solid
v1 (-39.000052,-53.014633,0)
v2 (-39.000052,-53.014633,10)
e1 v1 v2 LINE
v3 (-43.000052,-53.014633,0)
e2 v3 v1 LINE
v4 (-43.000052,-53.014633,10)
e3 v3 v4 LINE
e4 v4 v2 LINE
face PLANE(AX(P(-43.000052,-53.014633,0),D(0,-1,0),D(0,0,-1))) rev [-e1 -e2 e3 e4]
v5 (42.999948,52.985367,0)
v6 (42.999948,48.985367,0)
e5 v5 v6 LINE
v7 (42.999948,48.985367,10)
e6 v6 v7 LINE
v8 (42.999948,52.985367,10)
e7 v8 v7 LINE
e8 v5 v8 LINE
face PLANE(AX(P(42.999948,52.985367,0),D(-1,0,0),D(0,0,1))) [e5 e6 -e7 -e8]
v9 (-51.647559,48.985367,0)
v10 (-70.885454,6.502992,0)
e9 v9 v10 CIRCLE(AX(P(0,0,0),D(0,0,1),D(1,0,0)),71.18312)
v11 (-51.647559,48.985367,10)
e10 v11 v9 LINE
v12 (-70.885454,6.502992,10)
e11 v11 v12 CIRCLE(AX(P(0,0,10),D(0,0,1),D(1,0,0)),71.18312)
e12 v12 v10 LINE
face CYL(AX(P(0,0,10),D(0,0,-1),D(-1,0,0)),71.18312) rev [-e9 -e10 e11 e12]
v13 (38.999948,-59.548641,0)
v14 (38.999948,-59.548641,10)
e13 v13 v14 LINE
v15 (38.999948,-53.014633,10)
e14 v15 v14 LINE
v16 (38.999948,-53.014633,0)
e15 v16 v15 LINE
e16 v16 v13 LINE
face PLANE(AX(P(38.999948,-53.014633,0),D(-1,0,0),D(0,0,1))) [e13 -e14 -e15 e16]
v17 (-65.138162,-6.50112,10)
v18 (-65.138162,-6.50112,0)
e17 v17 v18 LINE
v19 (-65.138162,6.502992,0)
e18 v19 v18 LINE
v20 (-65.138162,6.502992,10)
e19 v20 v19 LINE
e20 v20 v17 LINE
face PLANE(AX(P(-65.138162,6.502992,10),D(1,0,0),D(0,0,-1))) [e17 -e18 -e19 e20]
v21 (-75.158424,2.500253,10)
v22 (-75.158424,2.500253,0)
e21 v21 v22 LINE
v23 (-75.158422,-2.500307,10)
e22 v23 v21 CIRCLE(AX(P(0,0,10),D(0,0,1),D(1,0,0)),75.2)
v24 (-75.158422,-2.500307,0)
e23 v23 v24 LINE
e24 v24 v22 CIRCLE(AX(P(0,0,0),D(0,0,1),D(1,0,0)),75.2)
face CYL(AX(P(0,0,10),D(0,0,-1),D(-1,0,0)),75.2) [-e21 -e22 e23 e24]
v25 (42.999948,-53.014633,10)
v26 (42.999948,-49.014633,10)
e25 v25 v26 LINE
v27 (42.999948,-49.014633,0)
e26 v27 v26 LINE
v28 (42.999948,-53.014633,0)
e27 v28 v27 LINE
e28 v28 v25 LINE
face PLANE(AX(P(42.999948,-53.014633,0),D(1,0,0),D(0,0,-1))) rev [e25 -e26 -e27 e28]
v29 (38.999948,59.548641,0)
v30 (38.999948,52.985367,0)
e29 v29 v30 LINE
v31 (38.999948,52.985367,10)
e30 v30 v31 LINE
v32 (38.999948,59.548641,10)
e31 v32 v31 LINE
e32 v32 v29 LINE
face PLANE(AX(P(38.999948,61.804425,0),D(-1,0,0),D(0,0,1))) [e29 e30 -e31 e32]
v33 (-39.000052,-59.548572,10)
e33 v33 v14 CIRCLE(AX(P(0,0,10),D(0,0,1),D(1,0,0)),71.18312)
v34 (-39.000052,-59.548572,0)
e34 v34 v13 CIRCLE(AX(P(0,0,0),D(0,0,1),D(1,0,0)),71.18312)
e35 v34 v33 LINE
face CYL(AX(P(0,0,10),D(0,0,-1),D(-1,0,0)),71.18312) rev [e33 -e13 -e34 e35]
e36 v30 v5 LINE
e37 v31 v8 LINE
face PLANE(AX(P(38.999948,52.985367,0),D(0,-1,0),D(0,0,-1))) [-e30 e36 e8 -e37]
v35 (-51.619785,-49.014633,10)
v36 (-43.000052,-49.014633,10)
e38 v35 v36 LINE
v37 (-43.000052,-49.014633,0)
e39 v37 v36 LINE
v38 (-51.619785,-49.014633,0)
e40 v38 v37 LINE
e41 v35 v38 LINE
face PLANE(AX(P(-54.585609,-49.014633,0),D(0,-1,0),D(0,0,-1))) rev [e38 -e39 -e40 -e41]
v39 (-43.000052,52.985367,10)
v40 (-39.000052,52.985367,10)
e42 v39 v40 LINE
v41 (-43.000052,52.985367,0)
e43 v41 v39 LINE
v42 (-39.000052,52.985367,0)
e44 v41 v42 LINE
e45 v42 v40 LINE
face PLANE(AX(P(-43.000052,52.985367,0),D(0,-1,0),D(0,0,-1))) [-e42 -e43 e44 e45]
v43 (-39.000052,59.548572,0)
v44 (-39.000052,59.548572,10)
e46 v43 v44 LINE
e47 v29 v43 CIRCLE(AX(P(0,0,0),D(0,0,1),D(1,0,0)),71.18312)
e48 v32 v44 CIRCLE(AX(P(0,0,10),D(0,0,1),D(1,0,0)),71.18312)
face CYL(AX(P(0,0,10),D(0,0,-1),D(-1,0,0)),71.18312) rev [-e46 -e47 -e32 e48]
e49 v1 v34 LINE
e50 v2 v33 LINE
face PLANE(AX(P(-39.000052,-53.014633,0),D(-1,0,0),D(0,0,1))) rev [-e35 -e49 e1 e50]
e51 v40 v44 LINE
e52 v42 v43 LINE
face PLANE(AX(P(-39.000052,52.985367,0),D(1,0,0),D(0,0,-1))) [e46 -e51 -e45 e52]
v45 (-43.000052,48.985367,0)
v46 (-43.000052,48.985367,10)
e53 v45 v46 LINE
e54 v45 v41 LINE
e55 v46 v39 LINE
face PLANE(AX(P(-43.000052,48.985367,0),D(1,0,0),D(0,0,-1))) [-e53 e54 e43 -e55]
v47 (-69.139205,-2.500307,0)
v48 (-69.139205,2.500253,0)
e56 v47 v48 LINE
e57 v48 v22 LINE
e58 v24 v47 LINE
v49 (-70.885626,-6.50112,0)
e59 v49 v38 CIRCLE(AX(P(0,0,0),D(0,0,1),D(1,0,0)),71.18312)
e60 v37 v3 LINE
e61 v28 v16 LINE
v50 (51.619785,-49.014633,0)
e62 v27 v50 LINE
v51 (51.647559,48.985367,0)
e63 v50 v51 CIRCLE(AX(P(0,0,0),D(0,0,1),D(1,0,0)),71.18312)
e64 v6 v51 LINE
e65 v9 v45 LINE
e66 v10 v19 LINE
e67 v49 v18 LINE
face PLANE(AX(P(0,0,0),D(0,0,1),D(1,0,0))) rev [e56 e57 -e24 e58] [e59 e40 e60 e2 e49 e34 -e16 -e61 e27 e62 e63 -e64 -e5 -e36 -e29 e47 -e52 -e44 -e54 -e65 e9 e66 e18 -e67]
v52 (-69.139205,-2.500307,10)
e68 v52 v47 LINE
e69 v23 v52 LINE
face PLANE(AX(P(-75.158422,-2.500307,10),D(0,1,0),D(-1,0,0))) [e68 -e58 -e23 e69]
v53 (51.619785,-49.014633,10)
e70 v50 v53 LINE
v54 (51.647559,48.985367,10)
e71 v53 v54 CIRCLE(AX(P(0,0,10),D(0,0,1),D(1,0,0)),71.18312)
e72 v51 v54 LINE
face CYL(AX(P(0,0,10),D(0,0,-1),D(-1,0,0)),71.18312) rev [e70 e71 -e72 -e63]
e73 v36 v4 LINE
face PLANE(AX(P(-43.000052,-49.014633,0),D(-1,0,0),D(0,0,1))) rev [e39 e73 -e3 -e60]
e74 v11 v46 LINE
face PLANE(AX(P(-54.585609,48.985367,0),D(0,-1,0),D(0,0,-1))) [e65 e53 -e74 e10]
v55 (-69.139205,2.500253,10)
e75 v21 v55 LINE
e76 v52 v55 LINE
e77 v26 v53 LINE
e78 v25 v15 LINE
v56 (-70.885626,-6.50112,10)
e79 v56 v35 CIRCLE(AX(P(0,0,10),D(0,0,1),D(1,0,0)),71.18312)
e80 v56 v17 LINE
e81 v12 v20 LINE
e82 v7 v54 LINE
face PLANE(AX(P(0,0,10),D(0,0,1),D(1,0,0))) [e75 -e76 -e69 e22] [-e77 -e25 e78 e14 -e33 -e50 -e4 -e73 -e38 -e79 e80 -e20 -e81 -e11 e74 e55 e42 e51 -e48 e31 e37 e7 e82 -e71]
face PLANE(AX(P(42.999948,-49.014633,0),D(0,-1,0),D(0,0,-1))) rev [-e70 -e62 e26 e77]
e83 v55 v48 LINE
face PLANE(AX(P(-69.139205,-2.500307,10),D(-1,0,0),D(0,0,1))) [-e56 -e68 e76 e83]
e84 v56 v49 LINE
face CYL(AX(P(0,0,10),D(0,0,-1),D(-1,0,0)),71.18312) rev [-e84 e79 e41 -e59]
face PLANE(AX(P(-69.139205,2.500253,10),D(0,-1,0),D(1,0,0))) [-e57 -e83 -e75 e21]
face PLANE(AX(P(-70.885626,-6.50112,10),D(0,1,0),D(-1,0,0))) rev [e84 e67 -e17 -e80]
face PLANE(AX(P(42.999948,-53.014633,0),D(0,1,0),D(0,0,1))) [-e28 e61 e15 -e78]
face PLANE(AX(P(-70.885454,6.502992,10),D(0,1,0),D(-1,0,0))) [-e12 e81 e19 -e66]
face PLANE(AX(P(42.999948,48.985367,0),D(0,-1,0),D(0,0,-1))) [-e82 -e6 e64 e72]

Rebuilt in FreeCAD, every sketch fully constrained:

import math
import FreeCAD as App
import Part
import Sketcher

V = App.Vector

doc = App.newDocument("Part")
body = doc.addObject("PartDesign::Body", "Body")

# Sketch on XY plane
sketch1 = body.newObject("Sketcher::SketchObject", "Sketch")
sketch1.AttachmentSupport = (doc.getObject("XY_Plane"), [""])
sketch1.MapMode = "FlatFace"
sketch1.addGeometry(Part.LineSegment(V(-69.139205, -2.500307, 0), V(-75.158422, -2.500307, 0)), False)
sketch1.addGeometry(Part.ArcOfCircle(Part.Circle(V(0, 0, 0), V(0, 0, 1), 75.2), math.radians(-178.094635), math.radians(178.094676)), False)
sketch1.addGeometry(Part.LineSegment(V(-75.158424, 2.500253, 0), V(-69.139205, 2.500253, 0)), False)
sketch1.addGeometry(Part.LineSegment(V(-69.139205, 2.500253, 0), V(-69.139205, -2.500307, 0)), False)
sketch1.addGeometry(Part.LineSegment(V(-70.885626, -6.50112, 0), V(-65.138162, -6.50112, 0)), False)
sketch1.addGeometry(Part.LineSegment(V(-65.138162, -6.50112, 0), V(-65.138162, 6.502992, 0)), False)
sketch1.addGeometry(Part.LineSegment(V(-65.138162, 6.502992, 0), V(-70.885454, 6.502992, 0)), False)
sketch1.addGeometry(Part.ArcOfCircle(Part.Circle(V(0, 0, 0), V(0, 0, 1), 71.18312), math.radians(-174.759902), math.radians(174.758389)), False)
sketch1.addConstraint(Sketcher.Constraint("Coincident", 0, 2, 1, 1))
sketch1.addConstraint(Sketcher.Constraint("Coincident", 1, 2, 2, 1))
sketch1.addConstraint(Sketcher.Constraint("Coincident", 2, 2, 3, 1))
sketch1.addConstraint(Sketcher.Constraint("Coincident", 3, 2, 0, 1))
sketch1.addConstraint(Sketcher.Constraint("Coincident", 4, 2, 5, 1))
sketch1.addConstraint(Sketcher.Constraint("Coincident", 5, 2, 6, 1))
sketch1.addConstraint(Sketcher.Constraint("Coincident", 6, 2, 7, 2))
sketch1.addConstraint(Sketcher.Constraint("Coincident", 7, 1, 4, 1))
sketch1.addConstraint(Sketcher.Constraint("Horizontal", 0))
sketch1.addConstraint(Sketcher.Constraint("Horizontal", 2))
sketch1.addConstraint(Sketcher.Constraint("Vertical", 3))
sketch1.addConstraint(Sketcher.Constraint("Horizontal", 4))
sketch1.addConstraint(Sketcher.Constraint("Vertical", 5))
sketch1.addConstraint(Sketcher.Constraint("Horizontal", 6))
sketch1.addConstraint(Sketcher.Constraint("Coincident", 1, 3, -1, 1))
sketch1.addConstraint(Sketcher.Constraint("Coincident", 7, 3, -1, 1))
sketch1.addConstraint(Sketcher.Constraint("Radius", 1, 75.2))
sketch1.addConstraint(Sketcher.Constraint("Radius", 7, 71.18312))
sketch1.addConstraint(Sketcher.Constraint("DistanceX", 2, 1, 2, 2, 6.019219))
sketch1.addConstraint(Sketcher.Constraint("DistanceY", 3, 2, 3, 1, 5.00056))
sketch1.addConstraint(Sketcher.Constraint("DistanceY", 5, 1, 5, 2, 13.004112))
sketch1.addConstraint(Sketcher.Constraint("DistanceY", 3, 2, 5, 2, 9.003299))
sketch1.addConstraint(Sketcher.Constraint("DistanceX", 1, 2, 7, 1, 4.272798))
sketch1.addConstraint(Sketcher.Constraint("DistanceX", 4, 1, 4, 2, 5.747464))
pad1 = body.newObject("PartDesign::Pad", "Pad")
pad1.Profile = sketch1
pad1.Length = 10

# Sketch on XY plane
sketch2 = body.newObject("Sketcher::SketchObject", "Sketch001")
sketch2.AttachmentSupport = (doc.getObject("XY_Plane"), [""])
sketch2.MapMode = "FlatFace"
sketch2.AttachmentOffset = App.Placement(V(0, 0, 10), App.Rotation())
sketch2.addGeometry(Part.LineSegment(V(42.999948, -49.014633, 0), V(42.999948, -53.014633, 0)), False)
sketch2.addGeometry(Part.LineSegment(V(42.999948, -53.014633, 0), V(38.999948, -53.014633, 0)), False)
sketch2.addGeometry(Part.LineSegment(V(38.999948, -53.014633, 0), V(38.999948, -62.774923, 0)), False)
sketch2.addGeometry(Part.LineSegment(V(38.999948, -62.774923, 0), V(55.729863, -49.014633, 0)), False)
sketch2.addGeometry(Part.LineSegment(V(55.729863, -49.014633, 0), V(42.999948, -49.014633, 0)), False)
sketch2.addGeometry(Part.LineSegment(V(42.999948, 52.985367, 0), V(42.999948, 48.985367, 0)), False)
sketch2.addGeometry(Part.LineSegment(V(42.999948, 48.985367, 0), V(54.948624, 48.985367, 0)), False)
sketch2.addGeometry(Part.LineSegment(V(54.948624, 48.985367, 0), V(38.999948, 61.804425, 0)), False)
sketch2.addGeometry(Part.LineSegment(V(38.999948, 61.804425, 0), V(38.999948, 52.985367, 0)), False)
sketch2.addGeometry(Part.LineSegment(V(38.999948, 52.985367, 0), V(42.999948, 52.985367, 0)), False)
sketch2.addGeometry(Part.LineSegment(V(-43.000052, 52.985367, 0), V(-39.000052, 52.985367, 0)), False)
sketch2.addGeometry(Part.LineSegment(V(-39.000052, 52.985367, 0), V(-39.000052, 61.804425, 0)), False)
sketch2.addGeometry(Part.LineSegment(V(-39.000052, 61.804425, 0), V(-54.585609, 48.985367, 0)), False)
sketch2.addGeometry(Part.LineSegment(V(-54.585609, 48.985367, 0), V(-43.000052, 48.985367, 0)), False)
sketch2.addGeometry(Part.LineSegment(V(-43.000052, 48.985367, 0), V(-43.000052, 52.985367, 0)), False)
sketch2.addGeometry(Part.LineSegment(V(-39.000052, -53.014633, 0), V(-43.000052, -53.014633, 0)), False)
sketch2.addGeometry(Part.LineSegment(V(-43.000052, -53.014633, 0), V(-43.000052, -49.014633, 0)), False)
sketch2.addGeometry(Part.LineSegment(V(-43.000052, -49.014633, 0), V(-54.585609, -49.014633, 0)), False)
sketch2.addGeometry(Part.LineSegment(V(-54.585609, -49.014633, 0), V(-39.000052, -62.774923, 0)), False)
sketch2.addGeometry(Part.LineSegment(V(-39.000052, -62.774923, 0), V(-39.000052, -53.014633, 0)), False)
sketch2.addConstraint(Sketcher.Constraint("Coincident", 0, 2, 1, 1))
sketch2.addConstraint(Sketcher.Constraint("Coincident", 1, 2, 2, 1))
sketch2.addConstraint(Sketcher.Constraint("Coincident", 2, 2, 3, 1))
sketch2.addConstraint(Sketcher.Constraint("Coincident", 3, 2, 4, 1))
sketch2.addConstraint(Sketcher.Constraint("Coincident", 4, 2, 0, 1))
sketch2.addConstraint(Sketcher.Constraint("Coincident", 5, 2, 6, 1))
sketch2.addConstraint(Sketcher.Constraint("Coincident", 6, 2, 7, 1))
sketch2.addConstraint(Sketcher.Constraint("Coincident", 7, 2, 8, 1))
sketch2.addConstraint(Sketcher.Constraint("Coincident", 8, 2, 9, 1))
sketch2.addConstraint(Sketcher.Constraint("Coincident", 9, 2, 5, 1))
sketch2.addConstraint(Sketcher.Constraint("Coincident", 10, 2, 11, 1))
sketch2.addConstraint(Sketcher.Constraint("Coincident", 11, 2, 12, 1))
sketch2.addConstraint(Sketcher.Constraint("Coincident", 12, 2, 13, 1))
sketch2.addConstraint(Sketcher.Constraint("Coincident", 13, 2, 14, 1))
sketch2.addConstraint(Sketcher.Constraint("Coincident", 14, 2, 10, 1))
sketch2.addConstraint(Sketcher.Constraint("Coincident", 15, 2, 16, 1))
sketch2.addConstraint(Sketcher.Constraint("Coincident", 16, 2, 17, 1))
sketch2.addConstraint(Sketcher.Constraint("Coincident", 17, 2, 18, 1))
sketch2.addConstraint(Sketcher.Constraint("Coincident", 18, 2, 19, 1))
sketch2.addConstraint(Sketcher.Constraint("Coincident", 19, 2, 15, 1))
sketch2.addConstraint(Sketcher.Constraint("Vertical", 0))
sketch2.addConstraint(Sketcher.Constraint("Horizontal", 1))
sketch2.addConstraint(Sketcher.Constraint("Vertical", 2))
sketch2.addConstraint(Sketcher.Constraint("Horizontal", 4))
sketch2.addConstraint(Sketcher.Constraint("Vertical", 5))
sketch2.addConstraint(Sketcher.Constraint("Horizontal", 6))
sketch2.addConstraint(Sketcher.Constraint("Vertical", 8))
sketch2.addConstraint(Sketcher.Constraint("Horizontal", 9))
sketch2.addConstraint(Sketcher.Constraint("Horizontal", 10))
sketch2.addConstraint(Sketcher.Constraint("Vertical", 11))
sketch2.addConstraint(Sketcher.Constraint("Horizontal", 13))
sketch2.addConstraint(Sketcher.Constraint("Vertical", 14))
sketch2.addConstraint(Sketcher.Constraint("Horizontal", 15))
sketch2.addConstraint(Sketcher.Constraint("Vertical", 16))
sketch2.addConstraint(Sketcher.Constraint("Horizontal", 17))
sketch2.addConstraint(Sketcher.Constraint("Vertical", 19))
sketch2.addConstraint(Sketcher.Constraint("Parallel", 3, 12))
sketch2.addConstraint(Sketcher.Constraint("Horizontal", 9, 2, 10, 2))
sketch2.addConstraint(Sketcher.Constraint("Horizontal", 7, 2, 11, 2))
sketch2.addConstraint(Sketcher.Constraint("Horizontal", 6, 2, 12, 2))
sketch2.addConstraint(Sketcher.Constraint("Horizontal", 1, 2, 15, 2))
sketch2.addConstraint(Sketcher.Constraint("Horizontal", 4, 2, 16, 2))
sketch2.addConstraint(Sketcher.Constraint("Horizontal", 2, 2, 18, 2))
sketch2.addConstraint(Sketcher.Constraint("Vertical", 4, 2, 5, 2))
sketch2.addConstraint(Sketcher.Constraint("Vertical", 2, 2, 7, 2))
sketch2.addConstraint(Sketcher.Constraint("Vertical", 14, 2, 15, 2))
sketch2.addConstraint(Sketcher.Constraint("Vertical", 12, 2, 17, 2))
sketch2.addConstraint(Sketcher.Constraint("Vertical", 11, 2, 18, 2))
sketch2.addConstraint(Sketcher.Constraint("Equal", 9, 10))
sketch2.addConstraint(Sketcher.Constraint("Equal", 15, 0))
sketch2.addConstraint(Sketcher.Constraint("Equal", 0, 5))
sketch2.addConstraint(Sketcher.Constraint("DistanceX", 1, 2, 1, 1, 4.0))
sketch2.addConstraint(Sketcher.Constraint("DistanceY", 4, 2, 5, 2, 98.0))
sketch2.addConstraint(Sketcher.Constraint("DistanceX", 10, 2, 8, 2, 78.0))
sketch2.addConstraint(Sketcher.Constraint("DistanceY", 2, 2, 2, 1, 9.760289))
sketch2.addConstraint(Sketcher.Constraint("DistanceY", 8, 2, 8, 1, 8.819058))
sketch2.addConstraint(Sketcher.Constraint("Distance", 7, 20.46188))
sketch2.addConstraint(Sketcher.Constraint("DistanceX", 4, 2, 4, 1, 12.729916))
sketch2.addConstraint(Sketcher.Constraint("DistanceX", 12, 2, -1, 1, 54.585609))
sketch2.addConstraint(Sketcher.Constraint("DistanceY", 0, 2, -1, 1, 53.014633))
pad2 = body.newObject("PartDesign::Pad", "Pad001")
pad2.Profile = sketch2
pad2.Length = 10
pad2.Reversed = True

doc.recompute()
